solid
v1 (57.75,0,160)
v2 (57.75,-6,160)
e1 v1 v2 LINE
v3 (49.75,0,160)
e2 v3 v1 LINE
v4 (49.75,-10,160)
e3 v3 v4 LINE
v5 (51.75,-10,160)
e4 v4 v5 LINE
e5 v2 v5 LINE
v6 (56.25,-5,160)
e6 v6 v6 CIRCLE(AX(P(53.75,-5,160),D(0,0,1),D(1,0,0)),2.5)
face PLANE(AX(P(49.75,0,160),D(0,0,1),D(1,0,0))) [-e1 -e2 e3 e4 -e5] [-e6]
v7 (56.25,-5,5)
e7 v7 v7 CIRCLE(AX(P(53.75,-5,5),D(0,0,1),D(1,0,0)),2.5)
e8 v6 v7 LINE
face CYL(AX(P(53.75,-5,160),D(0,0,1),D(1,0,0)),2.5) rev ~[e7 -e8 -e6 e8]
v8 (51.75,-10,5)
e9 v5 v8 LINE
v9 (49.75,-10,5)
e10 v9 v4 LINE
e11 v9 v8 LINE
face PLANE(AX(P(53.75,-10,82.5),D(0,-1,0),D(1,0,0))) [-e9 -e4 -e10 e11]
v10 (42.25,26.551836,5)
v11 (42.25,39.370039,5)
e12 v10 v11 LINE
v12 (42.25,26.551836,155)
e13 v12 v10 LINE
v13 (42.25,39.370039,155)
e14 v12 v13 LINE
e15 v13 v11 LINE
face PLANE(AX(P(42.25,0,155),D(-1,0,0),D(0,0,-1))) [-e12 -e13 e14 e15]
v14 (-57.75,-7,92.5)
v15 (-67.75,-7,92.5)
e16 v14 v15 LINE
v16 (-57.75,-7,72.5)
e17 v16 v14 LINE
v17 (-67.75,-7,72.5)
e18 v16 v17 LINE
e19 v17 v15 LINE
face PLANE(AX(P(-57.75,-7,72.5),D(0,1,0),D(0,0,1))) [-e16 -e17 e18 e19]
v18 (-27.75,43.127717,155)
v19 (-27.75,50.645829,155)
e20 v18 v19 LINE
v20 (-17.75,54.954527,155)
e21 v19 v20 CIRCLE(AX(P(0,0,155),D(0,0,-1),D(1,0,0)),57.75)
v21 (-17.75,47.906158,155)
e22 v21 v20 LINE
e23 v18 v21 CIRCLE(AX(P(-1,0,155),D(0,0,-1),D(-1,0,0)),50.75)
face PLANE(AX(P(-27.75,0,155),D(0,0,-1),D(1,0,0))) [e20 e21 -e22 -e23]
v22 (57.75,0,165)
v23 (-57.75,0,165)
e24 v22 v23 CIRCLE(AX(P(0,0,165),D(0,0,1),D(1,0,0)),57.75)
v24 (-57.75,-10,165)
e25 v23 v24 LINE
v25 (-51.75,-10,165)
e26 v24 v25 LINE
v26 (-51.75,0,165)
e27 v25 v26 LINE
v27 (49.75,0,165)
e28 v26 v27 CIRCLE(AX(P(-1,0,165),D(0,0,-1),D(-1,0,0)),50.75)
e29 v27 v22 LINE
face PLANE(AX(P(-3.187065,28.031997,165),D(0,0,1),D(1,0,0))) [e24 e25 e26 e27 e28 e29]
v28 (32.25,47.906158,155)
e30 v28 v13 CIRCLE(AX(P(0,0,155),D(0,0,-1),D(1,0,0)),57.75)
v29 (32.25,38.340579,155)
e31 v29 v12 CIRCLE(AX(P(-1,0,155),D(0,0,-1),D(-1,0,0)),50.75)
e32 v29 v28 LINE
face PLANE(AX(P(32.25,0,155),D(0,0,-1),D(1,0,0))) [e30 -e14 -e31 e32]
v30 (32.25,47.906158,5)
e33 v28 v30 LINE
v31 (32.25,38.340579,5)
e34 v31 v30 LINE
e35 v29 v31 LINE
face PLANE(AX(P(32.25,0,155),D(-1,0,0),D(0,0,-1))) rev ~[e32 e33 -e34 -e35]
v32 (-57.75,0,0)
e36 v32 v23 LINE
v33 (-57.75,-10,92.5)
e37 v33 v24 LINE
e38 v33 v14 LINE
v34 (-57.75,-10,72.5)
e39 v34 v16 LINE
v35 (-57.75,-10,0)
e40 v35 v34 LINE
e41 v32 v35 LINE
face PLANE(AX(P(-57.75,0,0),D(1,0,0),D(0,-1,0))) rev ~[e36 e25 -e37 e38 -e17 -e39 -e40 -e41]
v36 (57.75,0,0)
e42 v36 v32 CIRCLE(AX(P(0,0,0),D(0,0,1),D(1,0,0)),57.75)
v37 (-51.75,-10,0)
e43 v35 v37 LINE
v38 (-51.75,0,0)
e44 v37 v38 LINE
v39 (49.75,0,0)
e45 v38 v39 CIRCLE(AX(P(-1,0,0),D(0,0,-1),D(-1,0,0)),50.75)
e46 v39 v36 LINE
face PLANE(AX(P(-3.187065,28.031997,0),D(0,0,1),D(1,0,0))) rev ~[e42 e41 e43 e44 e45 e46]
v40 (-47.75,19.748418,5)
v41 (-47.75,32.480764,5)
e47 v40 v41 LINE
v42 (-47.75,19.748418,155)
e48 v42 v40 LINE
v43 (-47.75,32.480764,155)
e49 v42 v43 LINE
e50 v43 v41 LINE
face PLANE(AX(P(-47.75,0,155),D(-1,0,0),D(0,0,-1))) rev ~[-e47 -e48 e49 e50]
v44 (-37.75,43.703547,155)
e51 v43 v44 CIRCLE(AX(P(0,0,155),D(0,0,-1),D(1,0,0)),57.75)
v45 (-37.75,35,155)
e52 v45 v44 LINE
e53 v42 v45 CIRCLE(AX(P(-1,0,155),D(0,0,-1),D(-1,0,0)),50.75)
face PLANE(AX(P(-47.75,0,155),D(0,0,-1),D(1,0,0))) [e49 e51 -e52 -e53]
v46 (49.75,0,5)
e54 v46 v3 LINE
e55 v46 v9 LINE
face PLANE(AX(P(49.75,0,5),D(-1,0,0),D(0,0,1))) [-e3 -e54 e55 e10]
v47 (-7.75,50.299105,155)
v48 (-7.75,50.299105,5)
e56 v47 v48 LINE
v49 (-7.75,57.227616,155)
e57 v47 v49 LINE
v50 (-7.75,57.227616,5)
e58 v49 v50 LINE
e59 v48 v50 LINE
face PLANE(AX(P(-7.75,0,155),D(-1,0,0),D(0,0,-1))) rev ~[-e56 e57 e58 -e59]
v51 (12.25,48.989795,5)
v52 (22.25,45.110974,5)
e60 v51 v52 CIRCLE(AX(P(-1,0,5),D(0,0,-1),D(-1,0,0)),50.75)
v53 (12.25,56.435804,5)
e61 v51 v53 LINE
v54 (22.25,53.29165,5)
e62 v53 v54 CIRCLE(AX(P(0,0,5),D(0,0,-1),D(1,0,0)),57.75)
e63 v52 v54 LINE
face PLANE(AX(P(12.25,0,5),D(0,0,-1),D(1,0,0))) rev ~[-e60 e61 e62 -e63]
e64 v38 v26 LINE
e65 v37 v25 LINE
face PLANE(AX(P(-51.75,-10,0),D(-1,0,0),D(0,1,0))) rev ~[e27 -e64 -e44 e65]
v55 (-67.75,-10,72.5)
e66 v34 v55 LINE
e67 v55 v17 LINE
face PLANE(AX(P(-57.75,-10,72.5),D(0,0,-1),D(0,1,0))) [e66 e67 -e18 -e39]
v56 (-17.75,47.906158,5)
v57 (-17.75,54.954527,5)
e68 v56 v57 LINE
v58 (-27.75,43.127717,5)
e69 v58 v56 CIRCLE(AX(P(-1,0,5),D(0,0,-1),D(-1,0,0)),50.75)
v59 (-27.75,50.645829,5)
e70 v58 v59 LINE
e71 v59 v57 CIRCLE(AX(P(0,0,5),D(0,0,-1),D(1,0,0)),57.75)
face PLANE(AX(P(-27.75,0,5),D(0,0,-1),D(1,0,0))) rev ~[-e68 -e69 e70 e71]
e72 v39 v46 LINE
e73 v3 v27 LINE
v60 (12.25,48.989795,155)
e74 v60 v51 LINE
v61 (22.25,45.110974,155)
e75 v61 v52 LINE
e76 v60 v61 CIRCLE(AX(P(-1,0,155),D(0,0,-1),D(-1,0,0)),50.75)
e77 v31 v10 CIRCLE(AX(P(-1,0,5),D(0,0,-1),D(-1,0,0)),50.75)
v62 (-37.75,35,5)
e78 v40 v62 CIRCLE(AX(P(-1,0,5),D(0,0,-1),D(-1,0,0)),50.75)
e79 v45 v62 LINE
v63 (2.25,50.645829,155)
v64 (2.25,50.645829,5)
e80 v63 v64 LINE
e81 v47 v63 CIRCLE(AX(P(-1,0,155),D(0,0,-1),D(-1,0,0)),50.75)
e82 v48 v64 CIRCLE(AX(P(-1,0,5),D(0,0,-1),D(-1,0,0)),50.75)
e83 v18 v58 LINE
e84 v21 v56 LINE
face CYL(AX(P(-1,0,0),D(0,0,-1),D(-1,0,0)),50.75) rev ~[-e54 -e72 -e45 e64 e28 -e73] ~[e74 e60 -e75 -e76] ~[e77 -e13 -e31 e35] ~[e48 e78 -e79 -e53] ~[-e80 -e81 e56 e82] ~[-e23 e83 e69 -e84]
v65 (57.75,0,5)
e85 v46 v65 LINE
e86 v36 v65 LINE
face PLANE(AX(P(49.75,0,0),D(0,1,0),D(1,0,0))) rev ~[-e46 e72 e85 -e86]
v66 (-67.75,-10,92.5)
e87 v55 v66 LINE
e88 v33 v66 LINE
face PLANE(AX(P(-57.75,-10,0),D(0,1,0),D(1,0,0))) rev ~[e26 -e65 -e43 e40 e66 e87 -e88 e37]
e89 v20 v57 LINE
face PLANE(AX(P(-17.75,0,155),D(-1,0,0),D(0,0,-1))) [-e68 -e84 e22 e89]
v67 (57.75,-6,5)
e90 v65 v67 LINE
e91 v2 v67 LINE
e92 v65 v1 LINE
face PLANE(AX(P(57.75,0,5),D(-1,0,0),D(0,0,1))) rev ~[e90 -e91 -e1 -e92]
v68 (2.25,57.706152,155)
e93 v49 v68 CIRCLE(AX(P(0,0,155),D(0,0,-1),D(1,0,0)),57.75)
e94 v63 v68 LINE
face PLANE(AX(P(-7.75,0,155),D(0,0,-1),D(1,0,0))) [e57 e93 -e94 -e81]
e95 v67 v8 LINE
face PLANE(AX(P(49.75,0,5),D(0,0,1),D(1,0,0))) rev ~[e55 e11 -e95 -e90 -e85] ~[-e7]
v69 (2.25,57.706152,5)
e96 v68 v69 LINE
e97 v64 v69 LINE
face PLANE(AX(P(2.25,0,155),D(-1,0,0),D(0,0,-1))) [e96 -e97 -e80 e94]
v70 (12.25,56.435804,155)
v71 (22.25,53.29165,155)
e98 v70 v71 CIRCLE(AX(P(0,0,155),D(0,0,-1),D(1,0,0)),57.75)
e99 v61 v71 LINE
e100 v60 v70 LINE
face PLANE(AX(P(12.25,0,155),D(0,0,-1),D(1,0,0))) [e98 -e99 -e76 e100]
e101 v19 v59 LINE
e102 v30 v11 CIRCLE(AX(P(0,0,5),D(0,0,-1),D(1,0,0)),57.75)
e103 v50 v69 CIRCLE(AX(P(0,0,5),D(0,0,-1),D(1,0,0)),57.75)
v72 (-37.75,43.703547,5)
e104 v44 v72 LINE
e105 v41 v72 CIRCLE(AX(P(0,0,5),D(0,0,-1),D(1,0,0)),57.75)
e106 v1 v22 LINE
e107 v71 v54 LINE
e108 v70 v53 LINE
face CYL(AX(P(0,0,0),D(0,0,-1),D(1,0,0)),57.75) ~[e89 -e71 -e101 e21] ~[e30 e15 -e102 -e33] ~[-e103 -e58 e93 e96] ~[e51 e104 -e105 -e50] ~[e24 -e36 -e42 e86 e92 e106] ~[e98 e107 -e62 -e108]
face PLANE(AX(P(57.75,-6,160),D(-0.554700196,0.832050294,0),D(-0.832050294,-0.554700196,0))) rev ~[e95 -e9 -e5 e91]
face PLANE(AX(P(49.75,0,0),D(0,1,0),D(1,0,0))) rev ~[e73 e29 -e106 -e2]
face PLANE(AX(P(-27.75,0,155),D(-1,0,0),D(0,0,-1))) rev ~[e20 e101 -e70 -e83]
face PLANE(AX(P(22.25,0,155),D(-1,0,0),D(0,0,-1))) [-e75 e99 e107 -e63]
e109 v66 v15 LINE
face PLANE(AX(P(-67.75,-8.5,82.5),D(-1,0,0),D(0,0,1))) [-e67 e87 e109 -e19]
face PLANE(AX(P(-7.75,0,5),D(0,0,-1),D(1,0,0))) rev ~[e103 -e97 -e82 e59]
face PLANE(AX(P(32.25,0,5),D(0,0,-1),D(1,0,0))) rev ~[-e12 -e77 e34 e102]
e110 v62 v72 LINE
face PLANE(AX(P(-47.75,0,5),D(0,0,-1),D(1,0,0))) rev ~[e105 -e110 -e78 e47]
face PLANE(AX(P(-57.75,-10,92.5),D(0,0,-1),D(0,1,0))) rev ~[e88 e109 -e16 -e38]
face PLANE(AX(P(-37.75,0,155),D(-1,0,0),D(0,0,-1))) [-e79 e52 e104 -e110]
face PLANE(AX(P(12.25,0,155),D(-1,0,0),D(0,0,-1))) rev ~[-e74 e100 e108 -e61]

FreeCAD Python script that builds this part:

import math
import FreeCAD as App
import Part
import Sketcher


def add_polygon(sketch, points):
    """Adds a closed chain of lines whose ends are joined by coincident constraints."""
    first, n = sketch.GeometryCount, len(points)
    for a, b in zip(points, points[1:] + points[:1]):
        sketch.addGeometry(Part.LineSegment(App.Vector(*a, 0), App.Vector(*b, 0)), False)
    for i in range(n):
        sketch.addConstraint(Sketcher.Constraint("Coincident", first + i, 2, first + (i + 1) % n, 1))

doc = App.newDocument("Part")
body = doc.addObject("PartDesign::Body", "Body")

# Sketch on XY plane
sketch1 = body.newObject("Sketcher::SketchObject", "Sketch")
sketch1.AttachmentSupport = (doc.getObject("XY_Plane"), [""])
sketch1.MapMode = "FlatFace"
sketch1.addGeometry([
    Part.LineSegment(App.Vector(-57.75, 0, 0), App.Vector(-57.75, -10, 0)),  # 0
    Part.LineSegment(App.Vector(-57.75, -10, 0), App.Vector(-51.75, -10, 0)),  # 1
    Part.LineSegment(App.Vector(-51.75, -10, 0), App.Vector(-51.75, 0, 0)),  # 2
    Part.ArcOfCircle(Part.Circle(App.Vector(-1, 0, 0), App.Vector(0, 0, 1), 50.75), math.radians(0), math.radians(180)),  # 3
    Part.LineSegment(App.Vector(49.75, 0, 0), App.Vector(57.75, 0, 0)),  # 4
    Part.ArcOfCircle(Part.Circle(App.Vector(0, 0, 0), App.Vector(0, 0, 1), 57.75), math.radians(0), math.radians(180)),  # 5
], False)
sketch1.addConstraint([
    Sketcher.Constraint("Coincident", 0, 2, 1, 1),
    Sketcher.Constraint("Coincident", 1, 2, 2, 1),
    Sketcher.Constraint("Tangent", 2, 2, 3, 2),
    Sketcher.Constraint("Coincident", 3, 1, 4, 1),
    Sketcher.Constraint("Coincident", 4, 2, 5, 1),
    Sketcher.Constraint("Tangent", 5, 2, 0, 1),
    Sketcher.Constraint("Vertical", 0),
    Sketcher.Constraint("Horizontal", 1),
    Sketcher.Constraint("Vertical", 2),
    Sketcher.Constraint("Horizontal", 4),
    Sketcher.Constraint("Coincident", 5, 3, -1, 1),
    Sketcher.Constraint("PointOnObject", 3, 3, -1),
    Sketcher.Constraint("PointOnObject", 3, 1, -1),
    Sketcher.Constraint("DistanceX", 1, 1, 1, 2, 6.0),
    Sketcher.Constraint("DistanceX", 4, 1, 4, 2, 8.0),
    Sketcher.Constraint("DistanceY", 0, 2, 0, 1, 10.0),
    Sketcher.Constraint("Radius", 3, 50.75),
])
pad1 = body.newObject("PartDesign::Pad", "Pad")
pad1.Profile = sketch1
pad1.Length = 165

# Sketch on XZ plane
sketch2 = body.newObject("Sketcher::SketchObject", "Sketch001")
sketch2.AttachmentSupport = (doc.getObject("XZ_Plane"), [""])
sketch2.MapMode = "FlatFace"
add_polygon(sketch2, [(-47.75, 5), (-47.75, 155), (-37.75, 155), (-37.75, 5)])  # lines 0-3
add_polygon(sketch2, [(-27.75, 5), (-27.75, 155), (-17.75, 155), (-17.75, 5)])  # lines 4-7
add_polygon(sketch2, [(-7.75, 5), (-7.75, 155), (2.25, 155), (2.25, 5)])  # lines 8-11
add_polygon(sketch2, [(12.25, 5), (12.25, 155), (22.25, 155), (22.25, 5)])  # lines 12-15
add_polygon(sketch2, [(32.25, 5), (32.25, 155), (42.25, 155), (42.25, 5)])  # lines 16-19
sketch2.addConstraint([
    Sketcher.Constraint("Vertical", 0),
    Sketcher.Constraint("Horizontal", 1),
    Sketcher.Constraint("Vertical", 2),
    Sketcher.Constraint("Horizontal", 3),
    Sketcher.Constraint("Vertical", 4),
    Sketcher.Constraint("Horizontal", 5),
    Sketcher.Constraint("Vertical", 6),
    Sketcher.Constraint("Horizontal", 7),
    Sketcher.Constraint("Vertical", 8),
    Sketcher.Constraint("Horizontal", 9),
    Sketcher.Constraint("Vertical", 10),
    Sketcher.Constraint("Horizontal", 11),
    Sketcher.Constraint("Vertical", 12),
    Sketcher.Constraint("Horizontal", 13),
    Sketcher.Constraint("Vertical", 14),
    Sketcher.Constraint("Horizontal", 15),
    Sketcher.Constraint("Vertical", 16),
    Sketcher.Constraint("Horizontal", 17),
    Sketcher.Constraint("Vertical", 18),
    Sketcher.Constraint("Horizontal", 19),
    Sketcher.Constraint("Horizontal", 1, 2, 4, 2),
    Sketcher.Constraint("Horizontal", 3, 2, 6, 2),
    Sketcher.Constraint("Horizontal", 5, 2, 8, 2),
    Sketcher.Constraint("Horizontal", 7, 2, 10, 2),
    Sketcher.Constraint("Horizontal", 9, 2, 12, 2),
    Sketcher.Constraint("Horizontal", 11, 2, 14, 2),
    Sketcher.Constraint("Horizontal", 13, 2, 16, 2),
    Sketcher.Constraint("Horizontal", 15, 2, 18, 2),
    Sketcher.Constraint("Equal", 3, 5),
    Sketcher.Constraint("Equal", 7, 9),
    Sketcher.Constraint("Equal", 11, 13),
    Sketcher.Constraint("Equal", 15, 17),
    Sketcher.Constraint("DistanceX", 1, 1, 1, 2, 10.0),
    Sketcher.Constraint("DistanceY", 0, 1, 0, 2, 150.0),
    Sketcher.Constraint("DistanceY", -1, 1, 0, 2, 155.0),
    Sketcher.Constraint("DistanceX", 1, 2, 4, 2, 10.0),
    Sketcher.Constraint("DistanceX", 5, 2, 8, 2, 10.0),
    Sketcher.Constraint("DistanceX", 9, 2, 12, 2, 10.0),
    Sketcher.Constraint("DistanceX", 13, 2, 16, 2, 10.0),
    Sketcher.Constraint("DistanceX", 0, 2, -1, 1, 47.75),
])
pocket1 = body.newObject("PartDesign::Pocket", "Pocket")
pocket1.Profile = sketch2
pocket1.Type = "ThroughAll"

# Sketch on XZ plane
sketch3 = body.newObject("Sketcher::SketchObject", "Sketch002")
sketch3.AttachmentSupport = (doc.getObject("XZ_Plane"), [""])
sketch3.MapMode = "FlatFace"
add_polygon(sketch3, [(49.75, 160), (49.75, 5), (57.75, 5), (57.75, 160)])  # lines 0-3
sketch3.addConstraint([
    Sketcher.Constraint("Vertical", 0),
    Sketcher.Constraint("Horizontal", 1),
    Sketcher.Constraint("Vertical", 2),
    Sketcher.Constraint("Horizontal", 3),
    Sketcher.Constraint("DistanceX", 1, 1, 1, 2, 8.0),
    Sketcher.Constraint("DistanceY", 0, 2, 0, 1, 155.0),
    Sketcher.Constraint("DistanceY", -1, 1, 0, 2, 5.0),
    Sketcher.Constraint("DistanceX", -1, 1, 0, 2, 49.75),
])
pad2 = body.newObject("PartDesign::Pad", "Pad001")
pad2.Profile = sketch3
pad2.Length = 10

# Sketch on XY plane
sketch4 = body.newObject("Sketcher::SketchObject", "Sketch003")
sketch4.AttachmentSupport = (doc.getObject("XY_Plane"), [""])
sketch4.MapMode = "FlatFace"
sketch4.AttachmentOffset = App.Placement(App.Vector(0, 0, 160), App.Rotation())
sketch4.addGeometry(Part.Circle(App.Vector(53.75, -5, 0), App.Vector(0, 0, 1), 2.5), False)
sketch4.addConstraint([
    Sketcher.Constraint("Diameter", 0, 5.0),
    Sketcher.Constraint("DistanceY", 0, 3, -1, 1, 5.0),
    Sketcher.Constraint("DistanceX", -1, 1, 0, 3, 53.75),
])
pocket2 = body.newObject("PartDesign::Pocket", "Pocket001")
pocket2.Profile = sketch4
pocket2.Type = "ThroughAll"

# Sketch on YZ plane
sketch5 = body.newObject("Sketcher::SketchObject", "Sketch004")
sketch5.AttachmentSupport = (doc.getObject("YZ_Plane"), [""])
sketch5.MapMode = "FlatFace"
sketch5.AttachmentOffset = App.Placement(App.Vector(0, 0, -57.75), App.Rotation())
add_polygon(sketch5, [(-7, 72.5), (-10, 72.5), (-10, 92.5), (-7, 92.5)])  # lines 0-3
sketch5.addConstraint([
    Sketcher.Constraint("Horizontal", 0),
    Sketcher.Constraint("Vertical", 1),
    Sketcher.Constraint("Horizontal", 2),
    Sketcher.Constraint("Vertical", 3),
    Sketcher.Constraint("DistanceX", 0, 2, 0, 1, 3.0),
    Sketcher.Constraint("DistanceY", 1, 1, 1, 2, 20.0),
    Sketcher.Constraint("DistanceX", 0, 2, -1, 1, 10.0),
    Sketcher.Constraint("DistanceY", -1, 1, 0, 2, 72.5),
])
pad3 = body.newObject("PartDesign::Pad", "Pad002")
pad3.Profile = sketch5
pad3.Length = 10
pad3.Reversed = True

# Sketch on XY plane
sketch6 = body.newObject("Sketcher::SketchObject", "Sketch005")
sketch6.AttachmentSupport = (doc.getObject("XY_Plane"), [""])
sketch6.MapMode = "FlatFace"
sketch6.AttachmentOffset = App.Placement(App.Vector(0, 0, 160), App.Rotation())
add_polygon(sketch6, [(57.75, -10), (57.75, -6), (51.75, -10)])  # lines 0-2
sketch6.addConstraint([
    Sketcher.Constraint("Vertical", 0),
    Sketcher.Constraint("Horizontal", 2),
    Sketcher.Constraint("DistanceX", 2, 1, 2, 2, 6.0),
    Sketcher.Constraint("DistanceY", 0, 1, 0, 2, 4.0),
    Sketcher.Constraint("DistanceY", 0, 2, -1, 1, 6.0),
    Sketcher.Constraint("DistanceX", -1, 1, 0, 2, 57.75),
])
pocket3 = body.newObject("PartDesign::Pocket", "Pocket002")
pocket3.Profile = sketch6
pocket3.Type = "ThroughAll"

doc.recompute()
